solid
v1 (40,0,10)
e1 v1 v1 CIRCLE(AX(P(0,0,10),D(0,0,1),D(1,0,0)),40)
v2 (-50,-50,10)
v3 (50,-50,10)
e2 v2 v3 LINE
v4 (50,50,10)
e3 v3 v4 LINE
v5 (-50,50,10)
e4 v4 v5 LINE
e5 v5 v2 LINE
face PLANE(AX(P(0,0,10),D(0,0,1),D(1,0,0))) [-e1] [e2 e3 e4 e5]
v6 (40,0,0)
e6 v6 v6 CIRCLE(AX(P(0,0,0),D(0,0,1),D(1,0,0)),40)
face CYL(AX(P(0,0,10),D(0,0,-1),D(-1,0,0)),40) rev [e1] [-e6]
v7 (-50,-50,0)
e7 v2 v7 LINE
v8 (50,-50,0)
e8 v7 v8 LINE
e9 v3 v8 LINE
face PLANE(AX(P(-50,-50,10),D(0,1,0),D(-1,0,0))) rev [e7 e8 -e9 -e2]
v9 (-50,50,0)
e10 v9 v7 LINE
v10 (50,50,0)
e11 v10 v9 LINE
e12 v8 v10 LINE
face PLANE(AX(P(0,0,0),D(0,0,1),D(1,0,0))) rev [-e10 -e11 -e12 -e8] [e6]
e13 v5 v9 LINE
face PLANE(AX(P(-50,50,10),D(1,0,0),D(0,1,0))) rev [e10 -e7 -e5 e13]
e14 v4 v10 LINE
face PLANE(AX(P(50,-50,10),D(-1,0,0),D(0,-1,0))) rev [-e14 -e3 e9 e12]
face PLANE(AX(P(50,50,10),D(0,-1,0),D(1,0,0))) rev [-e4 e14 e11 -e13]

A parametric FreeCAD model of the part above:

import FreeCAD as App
import Part
import Sketcher

V = App.Vector
Q = App.Units.Quantity

doc = App.newDocument("Part")
body = doc.addObject("PartDesign::Body", "Body")

sketch1 = doc.addObject("Sketcher::SketchObject", "Sketch")
body.addObject(sketch1)
sketch1.AttachmentSupport = (doc.XY_Plane, [""])
sketch1.MapMode = "FlatFace"
sketch1.addGeometry([
    Part.LineSegment(V(-50, 50, 0), V(-50, -50, 0)),
    Part.LineSegment(V(-50, -50, 0), V(50, -50, 0)),
    Part.LineSegment(V(50, -50, 0), V(50, 50, 0)),
    Part.LineSegment(V(50, 50, 0), V(-50, 50, 0)),
    Part.Circle(V(0, 0, 0), V(0, 0, 1), 40),
], False)
sketch1.addConstraint([
    Sketcher.Constraint("Coincident", 0, 2, 1, 1),
    Sketcher.Constraint("Coincident", 1, 2, 2, 1),
    Sketcher.Constraint("Coincident", 2, 2, 3, 1),
    Sketcher.Constraint("Coincident", 3, 2, 0, 1),
    Sketcher.Constraint("Vertical", 0),
    Sketcher.Constraint("Horizontal", 1),
    Sketcher.Constraint("Vertical", 2),
    Sketcher.Constraint("Horizontal", 3),
    Sketcher.Constraint("Coincident", 4, 3, -1, 1),
    Sketcher.Constraint("Symmetric", 0, 2, 2, 2, -1, 1),
    Sketcher.Constraint("Equal", 3, 0),
    Sketcher.Constraint("Diameter", 4, Q("80 mm")),
    Sketcher.Constraint("DistanceX", 1, 1, 1, 2, Q("100 mm")),
])
pad1 = doc.addObject("PartDesign::Pad", "Pad")
body.addObject(pad1)
pad1.Profile = sketch1
pad1.Length = 10

doc.recompute()
